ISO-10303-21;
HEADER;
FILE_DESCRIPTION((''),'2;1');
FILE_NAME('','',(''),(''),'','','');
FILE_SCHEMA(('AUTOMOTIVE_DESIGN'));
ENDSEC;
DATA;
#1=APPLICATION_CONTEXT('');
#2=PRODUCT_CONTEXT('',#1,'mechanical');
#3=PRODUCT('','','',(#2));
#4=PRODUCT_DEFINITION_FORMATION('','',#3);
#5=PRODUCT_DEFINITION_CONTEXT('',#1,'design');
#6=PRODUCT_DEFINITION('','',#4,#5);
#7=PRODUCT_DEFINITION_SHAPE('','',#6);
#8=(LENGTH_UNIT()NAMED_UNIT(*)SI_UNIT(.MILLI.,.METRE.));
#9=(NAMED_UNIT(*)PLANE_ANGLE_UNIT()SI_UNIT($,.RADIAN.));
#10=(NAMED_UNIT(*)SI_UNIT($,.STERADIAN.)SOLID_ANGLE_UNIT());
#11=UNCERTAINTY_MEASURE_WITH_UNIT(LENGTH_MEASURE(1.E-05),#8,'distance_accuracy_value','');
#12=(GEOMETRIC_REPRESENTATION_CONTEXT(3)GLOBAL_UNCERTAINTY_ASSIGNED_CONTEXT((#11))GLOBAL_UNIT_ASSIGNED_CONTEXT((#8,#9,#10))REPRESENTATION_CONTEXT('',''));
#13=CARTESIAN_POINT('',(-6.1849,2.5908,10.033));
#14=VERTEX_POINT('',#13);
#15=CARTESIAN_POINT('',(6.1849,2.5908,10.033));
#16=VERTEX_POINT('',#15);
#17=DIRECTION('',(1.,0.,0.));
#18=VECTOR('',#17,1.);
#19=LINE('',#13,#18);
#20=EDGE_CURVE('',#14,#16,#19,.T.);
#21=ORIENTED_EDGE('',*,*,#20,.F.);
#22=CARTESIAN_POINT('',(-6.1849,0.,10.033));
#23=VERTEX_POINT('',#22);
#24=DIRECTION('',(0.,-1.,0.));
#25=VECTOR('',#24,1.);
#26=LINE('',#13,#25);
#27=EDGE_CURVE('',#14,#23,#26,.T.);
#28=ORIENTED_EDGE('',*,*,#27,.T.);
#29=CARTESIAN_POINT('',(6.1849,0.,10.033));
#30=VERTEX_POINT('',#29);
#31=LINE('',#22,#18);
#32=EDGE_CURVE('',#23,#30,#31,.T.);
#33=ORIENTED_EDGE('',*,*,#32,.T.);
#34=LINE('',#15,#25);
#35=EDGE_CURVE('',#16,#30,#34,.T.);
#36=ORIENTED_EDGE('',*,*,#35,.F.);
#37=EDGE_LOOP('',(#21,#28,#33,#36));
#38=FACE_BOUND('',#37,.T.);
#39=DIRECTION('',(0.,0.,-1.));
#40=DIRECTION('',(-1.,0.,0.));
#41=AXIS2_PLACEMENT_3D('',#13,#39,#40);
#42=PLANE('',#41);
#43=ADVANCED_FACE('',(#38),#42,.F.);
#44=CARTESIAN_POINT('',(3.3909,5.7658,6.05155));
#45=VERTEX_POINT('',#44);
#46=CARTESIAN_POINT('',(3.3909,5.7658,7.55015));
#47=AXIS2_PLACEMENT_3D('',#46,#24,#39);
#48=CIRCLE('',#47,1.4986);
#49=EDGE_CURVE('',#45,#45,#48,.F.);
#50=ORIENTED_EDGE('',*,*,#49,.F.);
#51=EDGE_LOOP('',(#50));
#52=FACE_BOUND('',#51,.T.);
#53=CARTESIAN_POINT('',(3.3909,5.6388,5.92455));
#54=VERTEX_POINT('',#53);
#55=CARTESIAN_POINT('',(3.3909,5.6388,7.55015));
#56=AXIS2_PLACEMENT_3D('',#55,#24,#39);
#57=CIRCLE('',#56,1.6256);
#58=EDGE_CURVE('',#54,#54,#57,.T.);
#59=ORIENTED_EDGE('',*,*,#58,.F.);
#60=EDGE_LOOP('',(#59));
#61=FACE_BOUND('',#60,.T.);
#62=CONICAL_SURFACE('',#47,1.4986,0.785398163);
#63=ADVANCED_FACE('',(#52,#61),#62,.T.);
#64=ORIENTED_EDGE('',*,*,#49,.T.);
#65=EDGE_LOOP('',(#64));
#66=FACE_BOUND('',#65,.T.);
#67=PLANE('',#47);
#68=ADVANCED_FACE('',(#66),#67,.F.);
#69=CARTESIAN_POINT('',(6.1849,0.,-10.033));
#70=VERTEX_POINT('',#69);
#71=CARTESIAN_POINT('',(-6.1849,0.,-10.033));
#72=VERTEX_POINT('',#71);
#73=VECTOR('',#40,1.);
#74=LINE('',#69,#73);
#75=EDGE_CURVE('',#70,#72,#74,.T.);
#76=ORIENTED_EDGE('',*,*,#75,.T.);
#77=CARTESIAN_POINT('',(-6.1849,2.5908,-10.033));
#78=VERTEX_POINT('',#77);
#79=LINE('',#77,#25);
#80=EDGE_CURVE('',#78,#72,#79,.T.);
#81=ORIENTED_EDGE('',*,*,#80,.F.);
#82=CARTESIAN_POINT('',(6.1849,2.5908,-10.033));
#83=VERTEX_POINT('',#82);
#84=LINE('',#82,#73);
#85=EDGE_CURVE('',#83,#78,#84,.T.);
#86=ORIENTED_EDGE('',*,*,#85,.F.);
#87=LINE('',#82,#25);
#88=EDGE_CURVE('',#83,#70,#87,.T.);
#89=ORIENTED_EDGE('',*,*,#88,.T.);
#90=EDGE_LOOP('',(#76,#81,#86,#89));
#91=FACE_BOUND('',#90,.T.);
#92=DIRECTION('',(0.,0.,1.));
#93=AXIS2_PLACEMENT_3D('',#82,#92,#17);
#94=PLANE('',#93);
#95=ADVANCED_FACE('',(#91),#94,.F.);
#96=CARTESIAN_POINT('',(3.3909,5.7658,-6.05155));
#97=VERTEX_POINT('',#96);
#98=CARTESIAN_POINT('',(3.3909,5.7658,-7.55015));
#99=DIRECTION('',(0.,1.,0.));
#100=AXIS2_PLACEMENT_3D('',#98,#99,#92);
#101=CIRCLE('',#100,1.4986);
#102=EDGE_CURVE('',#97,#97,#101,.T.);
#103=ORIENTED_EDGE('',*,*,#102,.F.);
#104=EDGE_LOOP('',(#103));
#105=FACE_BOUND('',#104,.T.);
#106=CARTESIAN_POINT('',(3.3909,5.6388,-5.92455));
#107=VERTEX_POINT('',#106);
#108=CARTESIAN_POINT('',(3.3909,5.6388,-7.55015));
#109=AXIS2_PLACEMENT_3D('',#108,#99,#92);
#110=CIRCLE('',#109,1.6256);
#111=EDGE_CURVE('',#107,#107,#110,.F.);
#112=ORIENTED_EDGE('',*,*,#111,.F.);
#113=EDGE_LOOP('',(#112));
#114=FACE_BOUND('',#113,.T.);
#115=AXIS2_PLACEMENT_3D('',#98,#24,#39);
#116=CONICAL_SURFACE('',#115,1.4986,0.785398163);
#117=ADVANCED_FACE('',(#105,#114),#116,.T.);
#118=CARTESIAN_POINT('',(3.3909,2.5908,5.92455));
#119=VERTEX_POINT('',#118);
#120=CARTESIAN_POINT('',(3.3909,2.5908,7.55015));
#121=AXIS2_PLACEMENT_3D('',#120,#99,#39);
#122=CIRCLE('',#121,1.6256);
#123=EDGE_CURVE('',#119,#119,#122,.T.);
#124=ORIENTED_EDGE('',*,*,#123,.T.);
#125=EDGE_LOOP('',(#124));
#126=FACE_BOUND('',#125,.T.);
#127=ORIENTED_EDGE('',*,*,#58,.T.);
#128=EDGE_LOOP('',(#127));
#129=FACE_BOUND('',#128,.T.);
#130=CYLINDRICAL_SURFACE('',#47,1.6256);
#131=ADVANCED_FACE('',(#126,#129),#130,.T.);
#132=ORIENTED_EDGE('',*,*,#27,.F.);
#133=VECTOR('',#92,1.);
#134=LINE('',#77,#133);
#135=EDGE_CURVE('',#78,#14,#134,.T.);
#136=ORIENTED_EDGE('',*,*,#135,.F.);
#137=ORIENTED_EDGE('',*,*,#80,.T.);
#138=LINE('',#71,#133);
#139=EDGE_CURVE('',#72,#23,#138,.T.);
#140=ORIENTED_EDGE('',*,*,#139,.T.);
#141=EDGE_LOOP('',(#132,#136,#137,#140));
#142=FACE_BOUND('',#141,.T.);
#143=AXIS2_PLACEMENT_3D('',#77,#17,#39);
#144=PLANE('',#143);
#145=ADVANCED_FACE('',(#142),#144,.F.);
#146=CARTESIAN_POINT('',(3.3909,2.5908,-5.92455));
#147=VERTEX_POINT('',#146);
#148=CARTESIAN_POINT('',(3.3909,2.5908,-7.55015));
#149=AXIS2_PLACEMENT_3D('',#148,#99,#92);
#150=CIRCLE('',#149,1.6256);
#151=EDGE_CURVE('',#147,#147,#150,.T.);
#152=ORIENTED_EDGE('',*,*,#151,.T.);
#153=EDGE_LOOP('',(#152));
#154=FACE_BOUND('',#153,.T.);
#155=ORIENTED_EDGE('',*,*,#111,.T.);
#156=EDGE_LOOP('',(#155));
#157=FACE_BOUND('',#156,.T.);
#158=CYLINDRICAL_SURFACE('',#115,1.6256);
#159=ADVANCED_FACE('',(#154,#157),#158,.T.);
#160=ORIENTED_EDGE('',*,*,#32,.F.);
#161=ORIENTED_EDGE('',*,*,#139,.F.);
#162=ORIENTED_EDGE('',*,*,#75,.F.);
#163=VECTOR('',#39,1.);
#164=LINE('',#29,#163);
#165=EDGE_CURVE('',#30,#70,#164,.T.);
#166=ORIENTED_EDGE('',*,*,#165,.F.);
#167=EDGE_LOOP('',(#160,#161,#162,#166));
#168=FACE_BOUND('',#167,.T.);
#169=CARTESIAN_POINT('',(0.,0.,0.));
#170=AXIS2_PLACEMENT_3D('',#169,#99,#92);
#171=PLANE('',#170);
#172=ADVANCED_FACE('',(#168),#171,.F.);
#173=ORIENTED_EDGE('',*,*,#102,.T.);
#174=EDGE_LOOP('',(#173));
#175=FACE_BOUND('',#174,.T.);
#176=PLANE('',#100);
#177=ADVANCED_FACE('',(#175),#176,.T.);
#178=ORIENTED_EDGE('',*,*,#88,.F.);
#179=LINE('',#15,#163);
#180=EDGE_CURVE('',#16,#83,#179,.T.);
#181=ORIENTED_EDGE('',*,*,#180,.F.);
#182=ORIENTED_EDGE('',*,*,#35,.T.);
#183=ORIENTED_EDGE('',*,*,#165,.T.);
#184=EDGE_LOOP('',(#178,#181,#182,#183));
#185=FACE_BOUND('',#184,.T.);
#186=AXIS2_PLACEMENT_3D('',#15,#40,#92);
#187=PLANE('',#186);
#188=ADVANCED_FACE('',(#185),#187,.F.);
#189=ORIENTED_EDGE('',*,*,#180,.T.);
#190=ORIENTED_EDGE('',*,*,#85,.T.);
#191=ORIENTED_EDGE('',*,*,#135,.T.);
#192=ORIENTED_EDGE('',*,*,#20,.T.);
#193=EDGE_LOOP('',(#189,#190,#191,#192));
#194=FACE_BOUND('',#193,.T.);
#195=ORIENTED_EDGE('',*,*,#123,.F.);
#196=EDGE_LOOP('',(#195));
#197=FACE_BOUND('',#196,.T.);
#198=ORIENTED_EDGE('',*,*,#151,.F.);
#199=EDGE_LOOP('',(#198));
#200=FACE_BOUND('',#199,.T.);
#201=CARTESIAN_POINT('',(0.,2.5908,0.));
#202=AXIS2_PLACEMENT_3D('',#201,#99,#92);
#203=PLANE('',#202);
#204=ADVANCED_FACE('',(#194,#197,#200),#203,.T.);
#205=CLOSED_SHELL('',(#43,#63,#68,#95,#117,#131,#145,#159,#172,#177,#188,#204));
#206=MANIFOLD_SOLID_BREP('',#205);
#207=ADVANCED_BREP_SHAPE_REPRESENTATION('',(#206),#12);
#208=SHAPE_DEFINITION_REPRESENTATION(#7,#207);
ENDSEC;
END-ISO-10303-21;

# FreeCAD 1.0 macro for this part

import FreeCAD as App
import Part
import Sketcher

V = App.Vector
Q = App.Units.Quantity


def edges_at(feature, points):
    """Names of the edges that pass closest to the given points."""
    edges = feature.Shape.Edges
    near = lambda p: min(range(len(edges)), key=lambda i: edges[i].distToShape(Part.Vertex(*p))[0])
    return sorted({f"Edge{near(p) + 1}" for p in points})


def add_polygon(sketch, points):
    """Adds a closed chain of lines whose ends are joined by coincident constraints."""
    first, n = sketch.GeometryCount, len(points)
    for a, b in zip(points, points[1:] + points[:1]):
        sketch.addGeometry(Part.LineSegment(App.Vector(*a, 0), App.Vector(*b, 0)), False)
    for i in range(n):
        sketch.addConstraint(Sketcher.Constraint("Coincident", first + i, 2, first + (i + 1) % n, 1))

doc = App.newDocument("Part")
body = doc.addObject("PartDesign::Body", "Body")

sketch1 = body.newObject("Sketcher::SketchObject", "Sketch")
sketch1.AttachmentSupport = (doc.getObject("XZ_Plane"), [""])
sketch1.MapMode = "FlatFace"
add_polygon(sketch1, [(-6, -10), (-6, 10), (6, 10), (6, -10)])
sketch1.addConstraint([
    Sketcher.Constraint("Vertical", 0),
    Sketcher.Constraint("Horizontal", 1),
    Sketcher.Constraint("Vertical", 2),
    Sketcher.Constraint("Horizontal", 3),
    Sketcher.Constraint("Symmetric", 0, 2, 2, 2, -1, 1),
    Sketcher.Constraint("DistanceY", 0, 1, 0, 2, Q("0.79 in")),
    Sketcher.Constraint("DistanceX", 1, 1, 1, 2, Q("0.487 in")),
])
pad1 = body.newObject("PartDesign::Pad", "Pad")
pad1.Profile = sketch1
pad1.Length = Q("0.102 in")
pad1.Reversed = True

sketch2 = body.newObject("Sketcher::SketchObject", "Sketch001")
sketch2.AttachmentSupport = (doc.getObject("XZ_Plane"), [""])
sketch2.MapMode = "FlatFace"
sketch2.AttachmentOffset = App.Placement(V(0, 0, -0.102 * 25.4), App.Rotation())
sketch2.addGeometry([
    Part.Circle(V(3.4, -7.6, 0), V(0, 0, 1), 1.6),
    Part.Circle(V(3.4, 7.6, 0), V(0, 0, 1), 1.6),
], False)
sketch2.addConstraint([
    Sketcher.Constraint("Equal", 0, 1),
    Sketcher.Constraint("Symmetric", 0, 3, 1, 3, -1),
    Sketcher.Constraint("Diameter", 0, Q("0.128 in")),
    Sketcher.Constraint("DistanceX", -1, 1, 0, 3, Q("0.1335 in")),
    Sketcher.Constraint("DistanceY", 0, 3, 1, 3, Q("0.5945 in")),
])
pad2 = body.newObject("PartDesign::Pad", "Pad001")
pad2.Profile = sketch2
pad2.Length = Q("0.125 in")
pad2.Reversed = True
doc.recompute()

chamfer = body.newObject("PartDesign::Chamfer", "Chamfer")
chamfer.Base = (pad2, edges_at(pad2, [(3.391, 5.766, -9.176), (3.391, 5.766, 9.176)]))
chamfer.Size = Q("0.005 in")

doc.recompute()
